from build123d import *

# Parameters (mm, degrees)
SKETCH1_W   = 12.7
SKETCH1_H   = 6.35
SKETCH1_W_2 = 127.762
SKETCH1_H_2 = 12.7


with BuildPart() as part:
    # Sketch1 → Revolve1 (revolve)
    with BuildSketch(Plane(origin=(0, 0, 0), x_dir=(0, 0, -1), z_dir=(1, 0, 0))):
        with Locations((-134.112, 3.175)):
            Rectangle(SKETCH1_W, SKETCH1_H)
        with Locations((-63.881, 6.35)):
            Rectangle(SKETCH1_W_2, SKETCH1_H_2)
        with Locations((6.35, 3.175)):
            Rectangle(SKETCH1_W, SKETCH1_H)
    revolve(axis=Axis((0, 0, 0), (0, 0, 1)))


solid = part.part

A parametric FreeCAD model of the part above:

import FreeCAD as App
import Part
import Sketcher
Q = App.Units.Quantity


def add_polygon(sketch, points):
    """Adds a closed chain of lines whose ends are joined by coincident constraints."""
    first, n = sketch.GeometryCount, len(points)
    for a, b in zip(points, points[1:] + points[:1]):
        sketch.addGeometry(Part.LineSegment(App.Vector(*a, 0), App.Vector(*b, 0)), False)
    for i in range(n):
        sketch.addConstraint(Sketcher.Constraint("Coincident", first + i, 2, first + (i + 1) % n, 1))

doc = App.newDocument("Part")
body = doc.addObject("PartDesign::Body", "Body")

# Sketch on YZ plane
sketch1 = body.newObject("Sketcher::SketchObject", "Sketch")
sketch1.AttachmentSupport = (doc.getObject("YZ_Plane"), [""])
sketch1.MapMode = "FlatFace"
add_polygon(sketch1, [(6, 140), (0, 140), (0, -13), (6, -13), (6, 0), (13, 0), (13, 128), (6, 128)])  # lines 0-7
sketch1.addConstraint(Sketcher.Constraint("Horizontal", 0))
sketch1.addConstraint(Sketcher.Constraint("Vertical", 1))
sketch1.addConstraint(Sketcher.Constraint("Horizontal", 2))
sketch1.addConstraint(Sketcher.Constraint("Vertical", 3))
sketch1.addConstraint(Sketcher.Constraint("Horizontal", 4))
sketch1.addConstraint(Sketcher.Constraint("Vertical", 5))
sketch1.addConstraint(Sketcher.Constraint("Horizontal", 6))
sketch1.addConstraint(Sketcher.Constraint("Vertical", 7))
sketch1.addConstraint(Sketcher.Constraint("PointOnObject", 0, 2, -2))
sketch1.addConstraint(Sketcher.Constraint("PointOnObject", 3, 2, -1))
sketch1.addConstraint(Sketcher.Constraint("Vertical", 3, 2, 6, 2))
sketch1.addConstraint(Sketcher.Constraint("Equal", 2, 4))
sketch1.addConstraint(Sketcher.Constraint("Equal", 3, 7))
sketch1.addConstraint(Sketcher.Constraint("DistanceY", 3, 1, 3, 2, Q("0.5 in")))
sketch1.addConstraint(Sketcher.Constraint("DistanceX", 0, 2, 0, 1, Q("0.25 in")))
sketch1.addConstraint(Sketcher.Constraint("DistanceY", 1, 2, 1, 1, Q("6.03 in")))
revolution = body.newObject("PartDesign::Revolution", "Revolution")
revolution.Profile = sketch1
revolution.ReferenceAxis = (sketch1, ["V_Axis"])
revolution.Angle = 360

doc.recompute()
